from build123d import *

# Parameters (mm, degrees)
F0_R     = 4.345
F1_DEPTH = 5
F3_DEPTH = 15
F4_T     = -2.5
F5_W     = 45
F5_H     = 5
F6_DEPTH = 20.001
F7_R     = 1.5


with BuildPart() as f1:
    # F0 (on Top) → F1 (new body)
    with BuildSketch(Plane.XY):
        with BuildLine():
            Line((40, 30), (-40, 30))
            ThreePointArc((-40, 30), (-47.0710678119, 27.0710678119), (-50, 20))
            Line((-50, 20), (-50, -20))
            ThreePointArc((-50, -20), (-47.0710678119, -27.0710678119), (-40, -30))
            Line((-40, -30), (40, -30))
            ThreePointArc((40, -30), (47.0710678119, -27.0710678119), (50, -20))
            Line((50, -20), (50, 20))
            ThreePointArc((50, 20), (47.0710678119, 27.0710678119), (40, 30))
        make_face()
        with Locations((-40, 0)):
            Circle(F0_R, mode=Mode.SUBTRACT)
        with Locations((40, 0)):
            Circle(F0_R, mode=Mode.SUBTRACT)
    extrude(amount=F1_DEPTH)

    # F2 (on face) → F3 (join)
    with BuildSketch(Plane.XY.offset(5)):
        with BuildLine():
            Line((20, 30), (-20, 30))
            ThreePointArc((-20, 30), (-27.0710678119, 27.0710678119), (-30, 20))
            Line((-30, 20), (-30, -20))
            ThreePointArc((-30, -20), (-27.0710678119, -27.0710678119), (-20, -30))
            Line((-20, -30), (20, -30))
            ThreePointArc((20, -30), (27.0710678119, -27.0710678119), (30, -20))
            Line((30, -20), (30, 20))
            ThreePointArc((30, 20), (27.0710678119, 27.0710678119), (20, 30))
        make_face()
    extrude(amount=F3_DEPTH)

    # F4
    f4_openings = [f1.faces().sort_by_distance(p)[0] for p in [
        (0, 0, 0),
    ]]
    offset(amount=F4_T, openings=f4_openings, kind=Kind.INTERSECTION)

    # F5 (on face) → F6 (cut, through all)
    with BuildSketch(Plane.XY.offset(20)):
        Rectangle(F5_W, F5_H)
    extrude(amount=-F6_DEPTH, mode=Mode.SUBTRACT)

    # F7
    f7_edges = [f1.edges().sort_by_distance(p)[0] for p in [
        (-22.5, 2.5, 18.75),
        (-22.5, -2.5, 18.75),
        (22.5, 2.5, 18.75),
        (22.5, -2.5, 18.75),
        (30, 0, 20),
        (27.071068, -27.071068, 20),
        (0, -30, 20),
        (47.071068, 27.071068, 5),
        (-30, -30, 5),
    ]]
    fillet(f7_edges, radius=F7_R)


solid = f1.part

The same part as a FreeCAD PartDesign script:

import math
import FreeCAD as App
import Part
import Sketcher
Q = App.Units.Quantity


def edges_at(feature, points):
    """Names of the edges that pass closest to the given points."""
    edges = feature.Shape.Edges
    near = lambda p: min(range(len(edges)), key=lambda i: edges[i].distToShape(Part.Vertex(*p))[0])
    return sorted({f"Edge{near(p) + 1}" for p in points})


def faces_at(feature, points):
    """Names of the faces that lie closest to the given points."""
    faces = feature.Shape.Faces
    near = lambda p: min(range(len(faces)), key=lambda i: faces[i].distToShape(Part.Vertex(*p))[0])
    return sorted({f"Face{near(p) + 1}" for p in points})


def add_polygon(sketch, points):
    """Adds a closed chain of lines whose ends are joined by coincident constraints."""
    first, n = sketch.GeometryCount, len(points)
    for a, b in zip(points, points[1:] + points[:1]):
        sketch.addGeometry(Part.LineSegment(App.Vector(*a, 0), App.Vector(*b, 0)), False)
    for i in range(n):
        sketch.addConstraint(Sketcher.Constraint("Coincident", first + i, 2, first + (i + 1) % n, 1))

doc = App.newDocument("Part")
body = doc.addObject("PartDesign::Body", "Body")

# Sketch on XY plane
sketch1 = doc.addObject("Sketcher::SketchObject", "Sketch")
body.addObject(sketch1)
sketch1.AttachmentSupport = (doc.XY_Plane, [""])
sketch1.MapMode = "FlatFace"
sketch1.addGeometry(Part.LineSegment(App.Vector(40, 30, 0), App.Vector(-40, 30, 0)), False)
sketch1.addGeometry(Part.ArcOfCircle(Part.Circle(App.Vector(-40, 20, 0), App.Vector(0, 0, 1), 10), math.radians(90), math.radians(180)), False)
sketch1.addGeometry(Part.LineSegment(App.Vector(-50, 20, 0), App.Vector(-50, -20, 0)), False)
sketch1.addGeometry(Part.ArcOfCircle(Part.Circle(App.Vector(-40, -20, 0), App.Vector(0, 0, 1), 10), math.radians(180), math.radians(270)), False)
sketch1.addGeometry(Part.LineSegment(App.Vector(-40, -30, 0), App.Vector(40, -30, 0)), False)
sketch1.addGeometry(Part.ArcOfCircle(Part.Circle(App.Vector(40, -20, 0), App.Vector(0, 0, 1), 10), math.radians(-90), math.radians(0)), False)
sketch1.addGeometry(Part.LineSegment(App.Vector(50, -20, 0), App.Vector(50, 20, 0)), False)
sketch1.addGeometry(Part.ArcOfCircle(Part.Circle(App.Vector(40, 20, 0), App.Vector(0, 0, 1), 10), math.radians(0), math.radians(90)), False)
sketch1.addGeometry(Part.Circle(App.Vector(-40, 0, 0), App.Vector(0, 0, 1), 4.345), False)
sketch1.addGeometry(Part.Circle(App.Vector(40, 0, 0), App.Vector(0, 0, 1), 4.345), False)
sketch1.addConstraint(Sketcher.Constraint("Tangent", 0, 2, 1, 1))
sketch1.addConstraint(Sketcher.Constraint("Tangent", 1, 2, 2, 1))
sketch1.addConstraint(Sketcher.Constraint("Tangent", 2, 2, 3, 1))
sketch1.addConstraint(Sketcher.Constraint("Tangent", 3, 2, 4, 1))
sketch1.addConstraint(Sketcher.Constraint("Tangent", 4, 2, 5, 1))
sketch1.addConstraint(Sketcher.Constraint("Tangent", 5, 2, 6, 1))
sketch1.addConstraint(Sketcher.Constraint("Tangent", 6, 2, 7, 1))
sketch1.addConstraint(Sketcher.Constraint("Tangent", 7, 2, 0, 1))
sketch1.addConstraint(Sketcher.Constraint("Horizontal", 0))
sketch1.addConstraint(Sketcher.Constraint("Vertical", 2))
sketch1.addConstraint(Sketcher.Constraint("Horizontal", 4))
sketch1.addConstraint(Sketcher.Constraint("Vertical", 6))
sketch1.addConstraint(Sketcher.Constraint("Equal", 1, 3))
sketch1.addConstraint(Sketcher.Constraint("Equal", 3, 5))
sketch1.addConstraint(Sketcher.Constraint("Equal", 5, 7))
sketch1.addConstraint(Sketcher.Constraint("Equal", 8, 9))
sketch1.addConstraint(Sketcher.Constraint("Symmetric", 1, 3, 5, 3, -1, 1))
sketch1.addConstraint(Sketcher.Constraint("Symmetric", 8, 3, 9, 3, -1, 1))
sketch1.addConstraint(Sketcher.Constraint("PointOnObject", 8, 3, -1))
sketch1.addConstraint(Sketcher.Constraint("Vertical", 3, 3, 8, 3))
sketch1.addConstraint(Sketcher.Constraint("Radius", 1, Q("10 mm")))
sketch1.addConstraint(Sketcher.Constraint("Diameter", 8, Q("8.69 mm")))
sketch1.addConstraint(Sketcher.Constraint("DistanceX", 0, 2, 0, 1, Q("80 mm")))
sketch1.addConstraint(Sketcher.Constraint("DistanceY", 2, 2, 2, 1, Q("40 mm")))
pad1 = doc.addObject("PartDesign::Pad", "Pad")
body.addObject(pad1)
pad1.Profile = sketch1
pad1.Length = 5

# Sketch on XY plane
sketch2 = doc.addObject("Sketcher::SketchObject", "Sketch001")
body.addObject(sketch2)
sketch2.AttachmentSupport = (doc.XY_Plane, [""])
sketch2.MapMode = "FlatFace"
sketch2.AttachmentOffset = App.Placement(App.Vector(0, 0, 5), App.Rotation())
sketch2.addGeometry(Part.LineSegment(App.Vector(20, 30, 0), App.Vector(-20, 30, 0)), False)
sketch2.addGeometry(Part.ArcOfCircle(Part.Circle(App.Vector(-20, 20, 0), App.Vector(0, 0, 1), 10), math.radians(90), math.radians(180)), False)
sketch2.addGeometry(Part.LineSegment(App.Vector(-30, 20, 0), App.Vector(-30, -20, 0)), False)
sketch2.addGeometry(Part.ArcOfCircle(Part.Circle(App.Vector(-20, -20, 0), App.Vector(0, 0, 1), 10), math.radians(180), math.radians(270)), False)
sketch2.addGeometry(Part.LineSegment(App.Vector(-20, -30, 0), App.Vector(20, -30, 0)), False)
sketch2.addGeometry(Part.ArcOfCircle(Part.Circle(App.Vector(20, -20, 0), App.Vector(0, 0, 1), 10), math.radians(-90), math.radians(0)), False)
sketch2.addGeometry(Part.LineSegment(App.Vector(30, -20, 0), App.Vector(30, 20, 0)), False)
sketch2.addGeometry(Part.ArcOfCircle(Part.Circle(App.Vector(20, 20, 0), App.Vector(0, 0, 1), 10), math.radians(0), math.radians(90)), False)
sketch2.addConstraint(Sketcher.Constraint("Tangent", 0, 2, 1, 1))
sketch2.addConstraint(Sketcher.Constraint("Tangent", 1, 2, 2, 1))
sketch2.addConstraint(Sketcher.Constraint("Tangent", 2, 2, 3, 1))
sketch2.addConstraint(Sketcher.Constraint("Tangent", 3, 2, 4, 1))
sketch2.addConstraint(Sketcher.Constraint("Tangent", 4, 2, 5, 1))
sketch2.addConstraint(Sketcher.Constraint("Tangent", 5, 2, 6, 1))
sketch2.addConstraint(Sketcher.Constraint("Tangent", 6, 2, 7, 1))
sketch2.addConstraint(Sketcher.Constraint("Tangent", 7, 2, 0, 1))
sketch2.addConstraint(Sketcher.Constraint("Horizontal", 0))
sketch2.addConstraint(Sketcher.Constraint("Vertical", 2))
sketch2.addConstraint(Sketcher.Constraint("Horizontal", 4))
sketch2.addConstraint(Sketcher.Constraint("Vertical", 6))
sketch2.addConstraint(Sketcher.Constraint("Equal", 1, 3))
sketch2.addConstraint(Sketcher.Constraint("Equal", 3, 5))
sketch2.addConstraint(Sketcher.Constraint("Equal", 5, 7))
sketch2.addConstraint(Sketcher.Constraint("Symmetric", 1, 3, 5, 3, -1, 1))
sketch2.addConstraint(Sketcher.Constraint("Equal", 4, 2))
sketch2.addConstraint(Sketcher.Constraint("Radius", 1, Q("10 mm")))
sketch2.addConstraint(Sketcher.Constraint("DistanceX", 0, 2, 0, 1, Q("40 mm")))
pad2 = doc.addObject("PartDesign::Pad", "Pad001")
body.addObject(pad2)
pad2.Profile = sketch2
pad2.Length = 15
doc.recompute()

thickness = doc.addObject("PartDesign::Thickness", "Thickness")
body.addObject(thickness)
thickness.Base = (pad2, faces_at(pad2, [(0, 0, 0)]))
thickness.Value = 2.5
thickness.Reversed = True
thickness.Join = "Intersection"

# Sketch on XY plane
sketch3 = doc.addObject("Sketcher::SketchObject", "Sketch002")
body.addObject(sketch3)
sketch3.AttachmentSupport = (doc.XY_Plane, [""])
sketch3.MapMode = "FlatFace"
sketch3.AttachmentOffset = App.Placement(App.Vector(0, 0, 20), App.Rotation())
add_polygon(sketch3, [(-22.5, 2.5), (-22.5, -2.5), (22.5, -2.5), (22.5, 2.5)])  # lines 0-3
sketch3.addConstraint(Sketcher.Constraint("Vertical", 0))
sketch3.addConstraint(Sketcher.Constraint("Horizontal", 1))
sketch3.addConstraint(Sketcher.Constraint("Vertical", 2))
sketch3.addConstraint(Sketcher.Constraint("Horizontal", 3))
sketch3.addConstraint(Sketcher.Constraint("Symmetric", 0, 2, 2, 2, -1, 1))
sketch3.addConstraint(Sketcher.Constraint("DistanceX", 1, 1, 1, 2, Q("45 mm")))
sketch3.addConstraint(Sketcher.Constraint("DistanceY", 0, 2, 0, 1, Q("5 mm")))
pocket1 = doc.addObject("PartDesign::Pocket", "Pocket")
body.addObject(pocket1)
pocket1.Profile = sketch3
pocket1.Type = "ThroughAll"
doc.recompute()

fillet = doc.addObject("PartDesign::Fillet", "Fillet")
body.addObject(fillet)
fillet.Base = (pocket1, edges_at(pocket1, [
    (-22.5, 2.5, 18.75),
    (-22.5, -2.5, 18.75),
    (22.5, 2.5, 18.75),
    (22.5, -2.5, 18.75),
    (30, 0, 20),
    (27.071, -27.071, 20),
    (0, -30, 20),
    (47.071, 27.071, 5),
    (-30, -30, 5),
]))
fillet.Radius = 1.5

doc.recompute()
